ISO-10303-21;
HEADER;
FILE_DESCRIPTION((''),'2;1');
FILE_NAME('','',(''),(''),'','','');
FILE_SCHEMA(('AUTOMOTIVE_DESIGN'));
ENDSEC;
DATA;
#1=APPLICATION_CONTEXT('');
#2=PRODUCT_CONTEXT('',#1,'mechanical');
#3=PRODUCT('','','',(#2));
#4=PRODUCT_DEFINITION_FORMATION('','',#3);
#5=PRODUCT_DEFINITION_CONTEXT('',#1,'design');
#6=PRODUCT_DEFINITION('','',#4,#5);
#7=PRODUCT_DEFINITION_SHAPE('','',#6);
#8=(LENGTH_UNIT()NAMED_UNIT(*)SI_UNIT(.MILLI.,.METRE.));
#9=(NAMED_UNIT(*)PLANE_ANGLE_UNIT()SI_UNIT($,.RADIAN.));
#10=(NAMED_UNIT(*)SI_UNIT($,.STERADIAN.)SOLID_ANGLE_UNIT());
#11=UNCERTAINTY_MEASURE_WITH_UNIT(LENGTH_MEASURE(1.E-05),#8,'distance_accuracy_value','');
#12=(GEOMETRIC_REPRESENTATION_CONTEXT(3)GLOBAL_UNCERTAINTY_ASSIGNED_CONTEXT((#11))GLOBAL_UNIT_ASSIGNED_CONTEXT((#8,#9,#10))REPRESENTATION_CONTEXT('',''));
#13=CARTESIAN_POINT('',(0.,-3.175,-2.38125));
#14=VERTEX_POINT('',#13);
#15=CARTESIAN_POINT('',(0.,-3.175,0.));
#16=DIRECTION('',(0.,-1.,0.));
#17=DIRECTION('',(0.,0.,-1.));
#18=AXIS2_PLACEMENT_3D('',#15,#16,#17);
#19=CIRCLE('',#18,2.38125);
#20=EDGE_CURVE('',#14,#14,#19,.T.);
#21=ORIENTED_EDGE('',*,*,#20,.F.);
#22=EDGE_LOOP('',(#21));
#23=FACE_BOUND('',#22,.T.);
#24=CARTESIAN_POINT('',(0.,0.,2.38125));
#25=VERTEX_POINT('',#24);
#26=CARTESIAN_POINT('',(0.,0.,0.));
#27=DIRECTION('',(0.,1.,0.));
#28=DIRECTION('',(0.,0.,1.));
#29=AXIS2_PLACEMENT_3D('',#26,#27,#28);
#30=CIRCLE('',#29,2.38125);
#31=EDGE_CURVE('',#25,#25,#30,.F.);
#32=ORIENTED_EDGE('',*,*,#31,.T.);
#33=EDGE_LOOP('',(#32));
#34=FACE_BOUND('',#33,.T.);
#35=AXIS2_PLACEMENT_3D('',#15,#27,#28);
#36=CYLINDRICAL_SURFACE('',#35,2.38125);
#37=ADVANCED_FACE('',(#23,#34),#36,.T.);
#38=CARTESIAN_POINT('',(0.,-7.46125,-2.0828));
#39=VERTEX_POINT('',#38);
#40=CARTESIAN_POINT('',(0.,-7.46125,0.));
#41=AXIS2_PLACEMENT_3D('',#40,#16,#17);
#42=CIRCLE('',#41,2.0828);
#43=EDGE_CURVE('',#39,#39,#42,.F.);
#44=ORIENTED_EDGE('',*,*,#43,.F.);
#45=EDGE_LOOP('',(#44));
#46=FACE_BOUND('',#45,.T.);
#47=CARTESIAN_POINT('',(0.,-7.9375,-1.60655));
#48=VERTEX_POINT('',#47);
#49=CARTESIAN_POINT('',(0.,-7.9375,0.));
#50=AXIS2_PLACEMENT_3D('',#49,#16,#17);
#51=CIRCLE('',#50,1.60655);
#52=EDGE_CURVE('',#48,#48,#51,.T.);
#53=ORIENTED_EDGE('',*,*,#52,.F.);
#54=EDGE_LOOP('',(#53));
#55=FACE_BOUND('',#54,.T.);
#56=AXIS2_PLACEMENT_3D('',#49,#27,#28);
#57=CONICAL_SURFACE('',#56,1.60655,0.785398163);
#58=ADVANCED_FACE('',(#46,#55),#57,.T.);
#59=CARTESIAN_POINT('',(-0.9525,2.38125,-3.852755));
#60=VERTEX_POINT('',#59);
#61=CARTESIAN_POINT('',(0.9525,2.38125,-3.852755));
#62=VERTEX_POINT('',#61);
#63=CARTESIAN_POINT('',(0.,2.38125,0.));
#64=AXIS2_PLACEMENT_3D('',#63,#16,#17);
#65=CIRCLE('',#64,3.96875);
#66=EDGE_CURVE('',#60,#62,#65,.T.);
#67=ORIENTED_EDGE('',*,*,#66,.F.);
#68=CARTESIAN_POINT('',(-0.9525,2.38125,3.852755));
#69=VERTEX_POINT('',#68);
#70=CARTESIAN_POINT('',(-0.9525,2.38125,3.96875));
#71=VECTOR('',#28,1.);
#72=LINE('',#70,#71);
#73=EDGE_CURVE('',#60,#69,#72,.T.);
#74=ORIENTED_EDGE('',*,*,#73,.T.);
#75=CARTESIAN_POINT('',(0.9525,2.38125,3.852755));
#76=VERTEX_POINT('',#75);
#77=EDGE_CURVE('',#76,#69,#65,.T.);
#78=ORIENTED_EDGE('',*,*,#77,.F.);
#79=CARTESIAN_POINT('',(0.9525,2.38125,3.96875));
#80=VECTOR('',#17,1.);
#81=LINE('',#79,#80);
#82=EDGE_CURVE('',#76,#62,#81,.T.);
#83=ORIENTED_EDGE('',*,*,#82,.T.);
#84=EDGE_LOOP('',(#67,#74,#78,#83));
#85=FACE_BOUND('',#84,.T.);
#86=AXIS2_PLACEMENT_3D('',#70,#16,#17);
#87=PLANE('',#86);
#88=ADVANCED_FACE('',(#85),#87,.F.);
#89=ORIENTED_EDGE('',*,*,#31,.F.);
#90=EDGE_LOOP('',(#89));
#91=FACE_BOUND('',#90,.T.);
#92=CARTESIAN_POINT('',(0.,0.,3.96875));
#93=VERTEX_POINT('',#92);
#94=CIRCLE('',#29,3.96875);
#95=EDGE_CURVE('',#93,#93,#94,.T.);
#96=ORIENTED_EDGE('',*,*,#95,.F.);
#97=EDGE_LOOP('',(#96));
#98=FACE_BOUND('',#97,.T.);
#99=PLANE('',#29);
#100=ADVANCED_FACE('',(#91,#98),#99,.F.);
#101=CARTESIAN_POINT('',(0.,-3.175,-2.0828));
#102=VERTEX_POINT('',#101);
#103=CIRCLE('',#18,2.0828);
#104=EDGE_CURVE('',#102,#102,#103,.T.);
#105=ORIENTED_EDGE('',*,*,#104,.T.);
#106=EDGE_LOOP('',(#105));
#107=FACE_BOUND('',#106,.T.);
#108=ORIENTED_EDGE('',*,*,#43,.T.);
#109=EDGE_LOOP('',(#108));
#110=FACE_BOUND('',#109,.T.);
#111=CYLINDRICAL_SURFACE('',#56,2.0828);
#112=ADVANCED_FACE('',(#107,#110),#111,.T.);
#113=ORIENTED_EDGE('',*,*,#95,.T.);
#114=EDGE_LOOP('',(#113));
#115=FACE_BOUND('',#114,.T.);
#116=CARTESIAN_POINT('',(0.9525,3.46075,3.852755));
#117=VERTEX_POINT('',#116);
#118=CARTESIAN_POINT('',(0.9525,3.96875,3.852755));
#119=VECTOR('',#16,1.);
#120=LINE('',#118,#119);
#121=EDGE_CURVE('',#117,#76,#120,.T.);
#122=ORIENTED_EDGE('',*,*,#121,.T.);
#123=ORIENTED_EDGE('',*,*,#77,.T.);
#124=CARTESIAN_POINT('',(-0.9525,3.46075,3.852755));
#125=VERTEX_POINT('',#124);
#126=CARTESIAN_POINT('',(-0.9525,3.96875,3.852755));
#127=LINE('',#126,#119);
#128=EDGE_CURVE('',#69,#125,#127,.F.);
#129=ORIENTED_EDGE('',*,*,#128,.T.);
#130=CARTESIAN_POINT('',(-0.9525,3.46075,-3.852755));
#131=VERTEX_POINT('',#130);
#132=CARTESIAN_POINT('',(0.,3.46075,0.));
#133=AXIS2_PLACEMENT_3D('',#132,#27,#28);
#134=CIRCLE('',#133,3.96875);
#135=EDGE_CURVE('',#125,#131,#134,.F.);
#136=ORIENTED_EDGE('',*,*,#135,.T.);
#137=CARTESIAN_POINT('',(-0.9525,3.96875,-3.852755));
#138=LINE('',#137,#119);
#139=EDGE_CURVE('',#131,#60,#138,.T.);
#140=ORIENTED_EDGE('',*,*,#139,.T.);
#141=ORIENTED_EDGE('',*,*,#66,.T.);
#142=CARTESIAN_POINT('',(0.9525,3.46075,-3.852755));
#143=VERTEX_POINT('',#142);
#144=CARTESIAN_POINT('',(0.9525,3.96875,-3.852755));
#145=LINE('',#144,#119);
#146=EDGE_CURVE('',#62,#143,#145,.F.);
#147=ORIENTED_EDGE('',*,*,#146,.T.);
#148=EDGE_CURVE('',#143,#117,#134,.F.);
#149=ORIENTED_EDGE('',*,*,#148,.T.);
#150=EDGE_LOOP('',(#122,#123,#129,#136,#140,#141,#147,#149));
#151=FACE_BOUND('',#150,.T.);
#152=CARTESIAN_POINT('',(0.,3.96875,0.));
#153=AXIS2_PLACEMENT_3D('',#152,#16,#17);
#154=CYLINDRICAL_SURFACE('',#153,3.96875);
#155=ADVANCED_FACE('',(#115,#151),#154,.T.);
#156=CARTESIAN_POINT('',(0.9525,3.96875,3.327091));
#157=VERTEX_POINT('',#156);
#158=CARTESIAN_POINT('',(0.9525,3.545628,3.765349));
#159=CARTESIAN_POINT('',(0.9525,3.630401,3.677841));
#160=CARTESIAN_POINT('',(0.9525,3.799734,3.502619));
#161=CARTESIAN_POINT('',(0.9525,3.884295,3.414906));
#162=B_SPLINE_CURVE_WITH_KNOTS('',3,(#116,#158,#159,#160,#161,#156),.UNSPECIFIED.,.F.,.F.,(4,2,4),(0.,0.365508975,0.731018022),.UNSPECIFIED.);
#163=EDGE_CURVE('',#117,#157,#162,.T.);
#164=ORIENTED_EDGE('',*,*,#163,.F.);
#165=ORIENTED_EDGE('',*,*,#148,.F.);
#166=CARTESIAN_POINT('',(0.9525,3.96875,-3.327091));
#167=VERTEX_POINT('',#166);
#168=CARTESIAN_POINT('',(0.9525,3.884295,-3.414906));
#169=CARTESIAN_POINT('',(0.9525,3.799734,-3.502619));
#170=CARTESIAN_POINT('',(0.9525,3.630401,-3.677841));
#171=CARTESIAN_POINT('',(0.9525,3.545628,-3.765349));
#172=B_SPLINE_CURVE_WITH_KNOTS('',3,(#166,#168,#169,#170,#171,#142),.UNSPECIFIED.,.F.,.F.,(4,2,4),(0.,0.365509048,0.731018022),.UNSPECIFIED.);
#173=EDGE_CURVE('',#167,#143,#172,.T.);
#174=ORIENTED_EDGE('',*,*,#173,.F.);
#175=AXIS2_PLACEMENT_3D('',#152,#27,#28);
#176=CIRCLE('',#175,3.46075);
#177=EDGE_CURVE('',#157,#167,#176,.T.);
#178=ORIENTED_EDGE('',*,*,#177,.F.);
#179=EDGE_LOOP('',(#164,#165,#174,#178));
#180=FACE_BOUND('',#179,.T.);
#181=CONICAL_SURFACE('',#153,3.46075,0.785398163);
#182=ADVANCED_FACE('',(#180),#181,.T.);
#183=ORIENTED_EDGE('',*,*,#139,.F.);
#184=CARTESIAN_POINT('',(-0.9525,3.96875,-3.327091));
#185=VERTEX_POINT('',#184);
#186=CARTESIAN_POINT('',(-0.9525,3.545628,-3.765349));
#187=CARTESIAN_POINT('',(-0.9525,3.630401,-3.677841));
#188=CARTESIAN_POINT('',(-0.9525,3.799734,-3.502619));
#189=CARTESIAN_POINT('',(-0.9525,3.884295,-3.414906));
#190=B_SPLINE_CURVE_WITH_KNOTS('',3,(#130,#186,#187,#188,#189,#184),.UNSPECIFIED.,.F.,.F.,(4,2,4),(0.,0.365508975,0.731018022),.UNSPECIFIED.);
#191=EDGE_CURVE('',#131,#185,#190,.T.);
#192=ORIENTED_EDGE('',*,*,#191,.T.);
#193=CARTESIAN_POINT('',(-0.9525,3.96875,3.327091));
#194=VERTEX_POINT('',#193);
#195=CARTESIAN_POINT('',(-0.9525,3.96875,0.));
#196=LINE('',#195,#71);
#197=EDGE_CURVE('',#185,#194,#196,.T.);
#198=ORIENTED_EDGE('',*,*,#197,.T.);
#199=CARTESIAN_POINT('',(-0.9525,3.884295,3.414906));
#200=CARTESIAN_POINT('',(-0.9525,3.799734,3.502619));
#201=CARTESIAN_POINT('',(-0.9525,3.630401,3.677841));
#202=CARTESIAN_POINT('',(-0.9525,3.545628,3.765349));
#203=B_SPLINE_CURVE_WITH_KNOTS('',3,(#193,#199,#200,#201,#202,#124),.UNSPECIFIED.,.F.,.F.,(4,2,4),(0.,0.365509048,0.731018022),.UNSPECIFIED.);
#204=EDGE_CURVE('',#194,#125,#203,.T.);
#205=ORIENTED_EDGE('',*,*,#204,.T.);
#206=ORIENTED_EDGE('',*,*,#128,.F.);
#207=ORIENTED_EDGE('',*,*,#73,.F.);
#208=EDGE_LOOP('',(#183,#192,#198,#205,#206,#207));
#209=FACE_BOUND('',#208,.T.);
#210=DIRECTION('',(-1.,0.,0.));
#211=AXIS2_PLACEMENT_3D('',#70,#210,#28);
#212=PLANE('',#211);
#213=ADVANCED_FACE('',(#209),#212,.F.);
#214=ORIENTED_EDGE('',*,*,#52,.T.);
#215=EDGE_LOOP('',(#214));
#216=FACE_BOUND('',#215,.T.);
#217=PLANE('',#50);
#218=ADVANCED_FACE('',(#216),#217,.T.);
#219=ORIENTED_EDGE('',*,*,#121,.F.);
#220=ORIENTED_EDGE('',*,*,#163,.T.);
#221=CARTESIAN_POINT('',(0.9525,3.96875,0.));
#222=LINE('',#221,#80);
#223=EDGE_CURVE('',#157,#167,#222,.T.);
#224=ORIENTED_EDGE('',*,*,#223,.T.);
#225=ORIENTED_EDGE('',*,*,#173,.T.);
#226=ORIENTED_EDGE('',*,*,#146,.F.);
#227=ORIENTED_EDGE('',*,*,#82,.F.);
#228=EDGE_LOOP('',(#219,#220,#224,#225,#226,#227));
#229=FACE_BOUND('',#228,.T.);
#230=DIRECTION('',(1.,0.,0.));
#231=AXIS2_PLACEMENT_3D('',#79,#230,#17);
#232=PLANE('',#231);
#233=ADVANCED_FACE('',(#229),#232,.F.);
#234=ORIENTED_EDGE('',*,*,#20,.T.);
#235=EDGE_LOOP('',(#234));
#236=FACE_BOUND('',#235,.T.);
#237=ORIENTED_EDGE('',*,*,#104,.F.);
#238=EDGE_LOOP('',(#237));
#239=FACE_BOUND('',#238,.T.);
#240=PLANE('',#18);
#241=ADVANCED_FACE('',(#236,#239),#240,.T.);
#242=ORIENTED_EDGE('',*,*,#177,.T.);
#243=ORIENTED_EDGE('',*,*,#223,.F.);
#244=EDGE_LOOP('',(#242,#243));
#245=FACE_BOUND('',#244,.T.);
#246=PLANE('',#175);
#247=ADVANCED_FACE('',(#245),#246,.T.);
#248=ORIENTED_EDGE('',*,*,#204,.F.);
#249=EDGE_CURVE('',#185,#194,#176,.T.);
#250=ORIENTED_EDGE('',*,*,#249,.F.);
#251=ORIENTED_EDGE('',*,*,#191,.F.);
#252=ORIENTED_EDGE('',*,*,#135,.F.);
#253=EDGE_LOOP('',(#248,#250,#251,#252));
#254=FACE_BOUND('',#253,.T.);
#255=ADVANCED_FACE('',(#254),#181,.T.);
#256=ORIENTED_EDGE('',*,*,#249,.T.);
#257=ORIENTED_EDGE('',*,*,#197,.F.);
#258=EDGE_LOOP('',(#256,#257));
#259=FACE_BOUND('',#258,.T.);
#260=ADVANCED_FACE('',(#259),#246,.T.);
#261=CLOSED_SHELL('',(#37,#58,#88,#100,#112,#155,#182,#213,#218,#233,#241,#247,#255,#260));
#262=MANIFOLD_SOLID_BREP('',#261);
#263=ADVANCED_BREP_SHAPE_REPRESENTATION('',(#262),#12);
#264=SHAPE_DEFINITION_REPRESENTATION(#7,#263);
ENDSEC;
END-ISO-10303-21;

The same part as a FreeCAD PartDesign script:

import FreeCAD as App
import Part
import Sketcher
Q = App.Units.Quantity


def edges_at(feature, points):
    """Names of the edges that pass closest to the given points."""
    edges = feature.Shape.Edges
    near = lambda p: min(range(len(edges)), key=lambda i: edges[i].distToShape(Part.Vertex(*p))[0])
    return sorted({f"Edge{near(p) + 1}" for p in points})


def add_polygon(sketch, points):
    """Adds a closed chain of lines whose ends are joined by coincident constraints."""
    first, n = sketch.GeometryCount, len(points)
    for a, b in zip(points, points[1:] + points[:1]):
        sketch.addGeometry(Part.LineSegment(App.Vector(*a, 0), App.Vector(*b, 0)), False)
    for i in range(n):
        sketch.addConstraint(Sketcher.Constraint("Coincident", first + i, 2, first + (i + 1) % n, 1))

doc = App.newDocument("Part")
body = doc.addObject("PartDesign::Body", "Body")

sketch1 = doc.addObject("Sketcher::SketchObject", "Sketch")
body.addObject(sketch1)
sketch1.AttachmentSupport = (doc.XZ_Plane, [""])
sketch1.MapMode = "FlatFace"
sketch1.addGeometry(Part.Circle(App.Vector(0, 0, 0), App.Vector(0, 0, 1), 4), False)
sketch1.addConstraint([
    Sketcher.Constraint("Coincident", 0, 3, -1, 1),
    Sketcher.Constraint("Diameter", 0, Q("0.3125 in")),
])
pad1 = doc.addObject("PartDesign::Pad", "Pad")
body.addObject(pad1)
pad1.Profile = sketch1
pad1.Length = Q("0.15625 in")
pad1.Reversed = True

sketch2 = doc.addObject("Sketcher::SketchObject", "Sketch001")
body.addObject(sketch2)
sketch2.AttachmentSupport = (doc.XZ_Plane, [""])
sketch2.MapMode = "FlatFace"
sketch2.AttachmentOffset = App.Placement(App.Vector(0, 0, -0.15625 * 25.4), App.Rotation())
add_polygon(sketch2, [(1, 4), (1, -4), (-1, -4), (-1, 4)])
sketch2.addConstraint([
    Sketcher.Constraint("Vertical", 0),
    Sketcher.Constraint("Horizontal", 1),
    Sketcher.Constraint("Vertical", 2),
    Sketcher.Constraint("Horizontal", 3),
    Sketcher.Constraint("Symmetric", 0, 2, 2, 2, -1, 1),
    Sketcher.Constraint("DistanceX", 1, 2, 1, 1, Q("0.075 in")),
    Sketcher.Constraint("DistanceY", 0, 2, 0, 1, Q("0.3125 in")),
])
pocket1 = doc.addObject("PartDesign::Pocket", "Pocket")
body.addObject(pocket1)
pocket1.Profile = sketch2
pocket1.Length = Q("0.0625 in")
pocket1.Reversed = True

sketch3 = doc.addObject("Sketcher::SketchObject", "Sketch002")
body.addObject(sketch3)
sketch3.AttachmentSupport = (doc.XZ_Plane, [""])
sketch3.MapMode = "FlatFace"
sketch3.addGeometry(Part.Circle(App.Vector(0, 0, 0), App.Vector(0, 0, 1), 2.4), False)
sketch3.addConstraint([
    Sketcher.Constraint("Coincident", 0, 3, -1, 1),
    Sketcher.Constraint("Diameter", 0, Q("0.1875 in")),
])
pad2 = doc.addObject("PartDesign::Pad", "Pad001")
body.addObject(pad2)
pad2.Profile = sketch3
pad2.Length = Q("0.125 in")

sketch4 = doc.addObject("Sketcher::SketchObject", "Sketch003")
body.addObject(sketch4)
sketch4.AttachmentSupport = (doc.XZ_Plane, [""])
sketch4.MapMode = "FlatFace"
sketch4.AttachmentOffset = App.Placement(App.Vector(0, 0, 0.125 * 25.4), App.Rotation())
sketch4.addGeometry(Part.Circle(App.Vector(0, 0, 0), App.Vector(0, 0, 1), 2.1), False)
sketch4.addConstraint([
    Sketcher.Constraint("Coincident", 0, 3, -1, 1),
    Sketcher.Constraint("Diameter", 0, Q("0.164 in")),
])
pad3 = doc.addObject("PartDesign::Pad", "Pad002")
body.addObject(pad3)
pad3.Profile = sketch4
pad3.Length = Q("0.1875 in")
doc.recompute()

chamfer = doc.addObject("PartDesign::Chamfer", "Chamfer")
body.addObject(chamfer)
chamfer.Base = (pad3, edges_at(pad3, [(3.125, 3.969, -2.447), (-3.969, 3.969, 0)]))
chamfer.Size = Q("0.02 in")
doc.recompute()

chamfer2 = doc.addObject("PartDesign::Chamfer", "Chamfer001")
body.addObject(chamfer2)
chamfer2.Base = (chamfer, edges_at(chamfer, [(-2.083, -7.938, 0)]))
chamfer2.Size = 0.47625

doc.recompute()
